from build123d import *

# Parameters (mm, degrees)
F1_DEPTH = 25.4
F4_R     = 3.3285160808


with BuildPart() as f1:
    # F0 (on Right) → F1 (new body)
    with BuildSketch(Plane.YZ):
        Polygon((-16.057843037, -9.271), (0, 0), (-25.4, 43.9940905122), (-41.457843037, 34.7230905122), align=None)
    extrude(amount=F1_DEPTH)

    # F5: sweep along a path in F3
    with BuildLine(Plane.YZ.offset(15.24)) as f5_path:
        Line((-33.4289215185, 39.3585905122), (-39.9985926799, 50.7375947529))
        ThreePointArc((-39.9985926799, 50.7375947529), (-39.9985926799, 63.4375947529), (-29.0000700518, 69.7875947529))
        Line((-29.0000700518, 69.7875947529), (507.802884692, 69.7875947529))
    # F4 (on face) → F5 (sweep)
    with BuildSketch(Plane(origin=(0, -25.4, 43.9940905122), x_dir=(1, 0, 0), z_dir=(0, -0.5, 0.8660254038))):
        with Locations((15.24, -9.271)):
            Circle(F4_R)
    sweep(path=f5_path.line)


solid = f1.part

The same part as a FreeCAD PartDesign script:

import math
import FreeCAD as App
import Part
import Sketcher
Q = App.Units.Quantity


def add_polygon(sketch, points):
    """Adds a closed chain of lines whose ends are joined by coincident constraints."""
    first, n = sketch.GeometryCount, len(points)
    for a, b in zip(points, points[1:] + points[:1]):
        sketch.addGeometry(Part.LineSegment(App.Vector(*a, 0), App.Vector(*b, 0)), False)
    for i in range(n):
        sketch.addConstraint(Sketcher.Constraint("Coincident", first + i, 2, first + (i + 1) % n, 1))

doc = App.newDocument("Part")
params = doc.addObject("Spreadsheet::Sheet", "Params")
for row, (alias, value) in enumerate([
    ("sketch1_length", "2 in"),
    ("sketch1_length2", "0.73 in"),
    ("pad1_length", "1 in"),
    ("sketch3_radius", "0.5 in"),
], start=1):
    params.set(f"A{row}", alias)
    params.set(f"B{row}", "=" + value)
    params.setAlias(f"B{row}", alias)

body = doc.addObject("PartDesign::Body", "Body")

sketch1 = doc.addObject("Sketcher::SketchObject", "Sketch")
body.addObject(sketch1)
sketch1.AttachmentSupport = (doc.YZ_Plane, [""])
sketch1.MapMode = "FlatFace"
add_polygon(sketch1, [(-16, -9), (0, 0), (-25, 44), (-41, 35)])
sketch1.addConstraint([
    Sketcher.Constraint("Coincident", 0, 2, -1, 1),
    Sketcher.Constraint("Perpendicular", 0, 1),
    Sketcher.Constraint("Perpendicular", 1, 2),
    Sketcher.Constraint("Perpendicular", 2, 3),
    Sketcher.Constraint("Distance", 1, Q("2 in")),
    Sketcher.Constraint("DistanceX", 1, 2, -1, 1, Q("1 in")),
    Sketcher.Constraint("Distance", 0, Q("0.73 in")),
])
sketch1.setExpression("Constraints[8]", "Params.sketch1_length")
sketch1.setExpression("Constraints[10]", "Params.sketch1_length2")
pad1 = doc.addObject("PartDesign::Pad", "Pad")
body.addObject(pad1)
pad1.Profile = sketch1
pad1.setExpression("Length", "Params.pad1_length")

sketch2 = doc.addObject("Sketcher::SketchObject", "Sketch001")
body.addObject(sketch2)
sketch2.Placement = App.Placement(App.Vector(0, -25.4, 43.994091), App.Rotation(App.Vector(1, 0, 0), App.Vector(0, 0.866025404, 0.5), App.Vector(0, -0.5, 0.866025404), "ZXY"))
sketch2.addGeometry(Part.Circle(App.Vector(15.2, -9.3, 0), App.Vector(0, 0, 1), 3.3), False)
sketch2.addConstraint([
    Sketcher.Constraint("DistanceX", -1, 1, 0, 3, Q("0.6 in")),
    Sketcher.Constraint("DistanceY", 0, 3, -1, 1, Q("0.365 in")),
    Sketcher.Constraint("Diameter", 0, 6.657032),
])

sketch3 = doc.addObject("Sketcher::SketchObject", "Sketch002")
body.addObject(sketch3)
sketch3.AttachmentSupport = (doc.YZ_Plane, [""])
sketch3.MapMode = "FlatFace"
sketch3.AttachmentOffset = App.Placement(App.Vector(0, 0, 0.6 * 25.4), App.Rotation())
sketch3.addGeometry([
    Part.LineSegment(App.Vector(-33, 39, 0), App.Vector(-40, 51, 0)),
    Part.ArcOfCircle(Part.Circle(App.Vector(-29, 57, 0), App.Vector(0, 0, 1), 13), math.radians(90), math.radians(210)),
    Part.LineSegment(App.Vector(-29, 70, 0), App.Vector(508, 70, 0)),
], False)
sketch3.addConstraint([
    Sketcher.Constraint("Tangent", 0, 2, 1, 2),
    Sketcher.Constraint("Tangent", 1, 1, 2, 1),
    Sketcher.Constraint("Horizontal", 2),
    Sketcher.Constraint("Radius", 1, Q("0.5 in")),
    Sketcher.Constraint("Angle", 0, Q("120 deg")),
    Sketcher.Constraint("DistanceX", 2, 1, 2, 2, 536.802955),
    Sketcher.Constraint("DistanceX", 1, 3, -1, 1, 29.00007),
    Sketcher.Constraint("DistanceX", 0, 1, -1, 1, 33.428922),
    Sketcher.Constraint("DistanceY", -1, 1, 0, 1, 39.358591),
])
sketch3.setExpression("Constraints[3]", "Params.sketch3_radius")
doc.recompute()

additivepipe = doc.addObject("PartDesign::AdditivePipe", "AdditivePipe")
body.addObject(additivepipe)
additivepipe.Profile = sketch2
additivepipe.Spine = (sketch3, ["Edge1", "Edge2", "Edge3"])

doc.recompute()
